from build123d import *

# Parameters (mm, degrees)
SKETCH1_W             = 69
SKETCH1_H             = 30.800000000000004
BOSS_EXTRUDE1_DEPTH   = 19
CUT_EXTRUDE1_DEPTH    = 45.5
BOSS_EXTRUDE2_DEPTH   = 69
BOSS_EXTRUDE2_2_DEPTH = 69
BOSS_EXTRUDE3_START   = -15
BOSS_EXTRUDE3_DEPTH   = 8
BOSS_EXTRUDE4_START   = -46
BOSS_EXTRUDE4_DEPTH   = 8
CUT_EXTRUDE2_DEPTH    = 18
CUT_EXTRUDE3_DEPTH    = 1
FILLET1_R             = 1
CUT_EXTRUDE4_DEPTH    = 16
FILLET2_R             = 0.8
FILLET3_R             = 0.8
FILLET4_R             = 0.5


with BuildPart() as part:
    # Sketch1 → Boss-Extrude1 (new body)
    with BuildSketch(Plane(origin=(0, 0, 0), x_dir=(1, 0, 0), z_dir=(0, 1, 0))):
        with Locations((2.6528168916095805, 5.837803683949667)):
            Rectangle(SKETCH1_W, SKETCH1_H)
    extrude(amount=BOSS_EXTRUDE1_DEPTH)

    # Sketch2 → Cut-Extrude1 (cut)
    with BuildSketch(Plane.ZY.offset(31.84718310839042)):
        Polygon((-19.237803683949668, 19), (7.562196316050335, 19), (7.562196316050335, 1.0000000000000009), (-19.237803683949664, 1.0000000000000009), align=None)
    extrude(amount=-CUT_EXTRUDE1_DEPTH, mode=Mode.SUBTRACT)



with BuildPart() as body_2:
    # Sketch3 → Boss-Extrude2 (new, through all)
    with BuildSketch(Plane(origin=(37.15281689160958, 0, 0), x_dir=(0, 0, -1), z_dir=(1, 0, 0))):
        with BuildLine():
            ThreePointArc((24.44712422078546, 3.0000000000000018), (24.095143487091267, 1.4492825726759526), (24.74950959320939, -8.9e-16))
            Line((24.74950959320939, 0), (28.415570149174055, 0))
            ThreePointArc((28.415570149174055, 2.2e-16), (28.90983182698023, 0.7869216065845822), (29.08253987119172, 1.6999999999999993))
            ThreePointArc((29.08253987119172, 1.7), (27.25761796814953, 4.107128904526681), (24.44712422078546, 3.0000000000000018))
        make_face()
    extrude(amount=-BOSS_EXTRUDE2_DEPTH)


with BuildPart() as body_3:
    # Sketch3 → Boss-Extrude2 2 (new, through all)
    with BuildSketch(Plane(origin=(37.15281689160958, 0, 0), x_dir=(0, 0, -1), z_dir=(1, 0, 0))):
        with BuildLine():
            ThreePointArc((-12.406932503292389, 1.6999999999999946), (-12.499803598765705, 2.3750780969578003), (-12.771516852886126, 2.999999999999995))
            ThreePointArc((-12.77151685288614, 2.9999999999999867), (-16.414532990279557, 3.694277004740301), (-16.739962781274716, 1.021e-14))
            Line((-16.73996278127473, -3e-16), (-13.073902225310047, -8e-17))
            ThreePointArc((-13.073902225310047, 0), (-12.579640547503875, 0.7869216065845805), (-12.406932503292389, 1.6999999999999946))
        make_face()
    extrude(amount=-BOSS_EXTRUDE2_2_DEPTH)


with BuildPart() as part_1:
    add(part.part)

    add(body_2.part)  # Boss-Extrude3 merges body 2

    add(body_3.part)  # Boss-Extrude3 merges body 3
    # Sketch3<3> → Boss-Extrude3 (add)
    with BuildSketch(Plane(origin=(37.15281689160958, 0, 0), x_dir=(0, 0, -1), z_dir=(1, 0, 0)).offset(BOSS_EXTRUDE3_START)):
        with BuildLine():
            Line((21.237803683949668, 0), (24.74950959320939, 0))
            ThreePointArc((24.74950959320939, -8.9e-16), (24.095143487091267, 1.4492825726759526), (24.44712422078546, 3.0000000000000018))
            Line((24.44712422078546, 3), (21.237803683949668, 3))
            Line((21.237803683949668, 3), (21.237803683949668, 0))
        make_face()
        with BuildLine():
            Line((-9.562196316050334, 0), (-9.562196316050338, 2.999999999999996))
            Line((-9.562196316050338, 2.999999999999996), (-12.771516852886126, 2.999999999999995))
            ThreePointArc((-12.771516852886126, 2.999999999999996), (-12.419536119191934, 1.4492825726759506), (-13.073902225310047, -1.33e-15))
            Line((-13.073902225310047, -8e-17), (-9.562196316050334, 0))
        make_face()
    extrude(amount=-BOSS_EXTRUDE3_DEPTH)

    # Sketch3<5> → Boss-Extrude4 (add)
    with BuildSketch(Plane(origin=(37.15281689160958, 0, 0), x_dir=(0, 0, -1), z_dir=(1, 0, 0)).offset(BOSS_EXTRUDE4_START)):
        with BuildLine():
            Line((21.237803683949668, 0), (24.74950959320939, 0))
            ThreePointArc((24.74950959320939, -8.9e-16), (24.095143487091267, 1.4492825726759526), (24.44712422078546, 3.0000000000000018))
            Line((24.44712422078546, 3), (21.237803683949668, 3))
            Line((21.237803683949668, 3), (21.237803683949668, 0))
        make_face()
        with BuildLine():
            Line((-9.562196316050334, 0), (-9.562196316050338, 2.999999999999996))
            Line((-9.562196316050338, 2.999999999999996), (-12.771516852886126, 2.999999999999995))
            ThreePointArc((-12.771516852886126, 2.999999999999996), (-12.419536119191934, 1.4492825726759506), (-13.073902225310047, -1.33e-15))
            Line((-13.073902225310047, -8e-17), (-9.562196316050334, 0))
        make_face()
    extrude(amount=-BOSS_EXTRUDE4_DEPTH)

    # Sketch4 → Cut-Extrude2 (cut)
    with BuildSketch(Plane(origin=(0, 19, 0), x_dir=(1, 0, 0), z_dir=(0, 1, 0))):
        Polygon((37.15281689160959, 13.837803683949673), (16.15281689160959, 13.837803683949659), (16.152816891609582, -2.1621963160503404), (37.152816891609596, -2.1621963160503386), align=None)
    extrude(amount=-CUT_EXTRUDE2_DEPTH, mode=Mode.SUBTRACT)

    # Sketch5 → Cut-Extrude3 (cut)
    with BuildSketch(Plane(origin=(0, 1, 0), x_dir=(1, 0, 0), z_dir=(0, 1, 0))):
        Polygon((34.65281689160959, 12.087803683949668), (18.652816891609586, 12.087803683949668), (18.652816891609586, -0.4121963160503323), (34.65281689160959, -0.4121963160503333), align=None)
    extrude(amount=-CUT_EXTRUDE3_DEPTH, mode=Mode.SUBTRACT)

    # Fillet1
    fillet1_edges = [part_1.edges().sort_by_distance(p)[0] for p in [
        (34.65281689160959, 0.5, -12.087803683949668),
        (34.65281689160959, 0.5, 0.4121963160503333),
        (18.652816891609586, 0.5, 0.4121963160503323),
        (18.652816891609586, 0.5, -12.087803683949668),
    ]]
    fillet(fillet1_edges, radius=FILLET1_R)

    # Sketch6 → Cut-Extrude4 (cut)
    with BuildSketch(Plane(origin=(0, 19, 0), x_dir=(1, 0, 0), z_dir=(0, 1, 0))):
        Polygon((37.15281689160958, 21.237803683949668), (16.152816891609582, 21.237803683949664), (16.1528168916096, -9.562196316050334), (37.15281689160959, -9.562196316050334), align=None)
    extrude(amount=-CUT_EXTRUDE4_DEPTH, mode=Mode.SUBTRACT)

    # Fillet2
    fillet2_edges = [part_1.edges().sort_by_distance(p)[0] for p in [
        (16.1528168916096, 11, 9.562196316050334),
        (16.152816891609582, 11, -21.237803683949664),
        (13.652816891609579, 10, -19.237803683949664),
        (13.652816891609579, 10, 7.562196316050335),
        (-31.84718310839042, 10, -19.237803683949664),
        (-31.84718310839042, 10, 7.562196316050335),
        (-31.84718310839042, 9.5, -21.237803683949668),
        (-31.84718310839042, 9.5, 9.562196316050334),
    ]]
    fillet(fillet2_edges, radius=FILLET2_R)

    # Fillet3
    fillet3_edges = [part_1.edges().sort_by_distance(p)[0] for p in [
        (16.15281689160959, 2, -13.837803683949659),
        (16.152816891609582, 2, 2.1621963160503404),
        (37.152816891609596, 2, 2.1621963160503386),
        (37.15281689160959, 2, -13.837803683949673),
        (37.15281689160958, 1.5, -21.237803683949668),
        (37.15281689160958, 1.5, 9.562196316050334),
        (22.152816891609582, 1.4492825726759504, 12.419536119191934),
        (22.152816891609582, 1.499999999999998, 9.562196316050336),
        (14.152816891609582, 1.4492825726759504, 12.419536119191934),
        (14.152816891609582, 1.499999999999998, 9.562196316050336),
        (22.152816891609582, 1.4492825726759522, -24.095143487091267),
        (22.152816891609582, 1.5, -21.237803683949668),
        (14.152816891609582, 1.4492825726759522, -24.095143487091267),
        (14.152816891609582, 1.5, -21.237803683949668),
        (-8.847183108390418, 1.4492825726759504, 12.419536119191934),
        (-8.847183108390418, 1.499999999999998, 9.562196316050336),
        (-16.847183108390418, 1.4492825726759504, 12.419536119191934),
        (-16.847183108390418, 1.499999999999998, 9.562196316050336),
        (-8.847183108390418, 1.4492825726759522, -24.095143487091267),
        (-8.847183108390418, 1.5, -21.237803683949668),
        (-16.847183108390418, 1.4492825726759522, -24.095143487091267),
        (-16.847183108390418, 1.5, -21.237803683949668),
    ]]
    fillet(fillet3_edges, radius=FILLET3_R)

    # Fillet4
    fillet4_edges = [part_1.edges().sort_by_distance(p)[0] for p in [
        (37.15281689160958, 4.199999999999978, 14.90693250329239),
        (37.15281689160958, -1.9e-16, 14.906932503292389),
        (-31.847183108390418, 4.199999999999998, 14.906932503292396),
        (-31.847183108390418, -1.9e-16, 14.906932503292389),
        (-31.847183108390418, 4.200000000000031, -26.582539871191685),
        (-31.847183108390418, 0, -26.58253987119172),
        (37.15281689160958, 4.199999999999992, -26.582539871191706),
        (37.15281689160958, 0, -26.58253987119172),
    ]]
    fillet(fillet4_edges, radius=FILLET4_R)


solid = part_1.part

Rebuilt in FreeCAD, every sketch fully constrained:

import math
import FreeCAD as App
import Part
import Sketcher
from FreeCAD import Vector


def edges_at(feature, points):
    """Names of the edges that pass closest to the given points."""
    edges = feature.Shape.Edges
    near = lambda p: min(range(len(edges)), key=lambda i: edges[i].distToShape(Part.Vertex(*p))[0])
    return sorted({f"Edge{near(p) + 1}" for p in points})


def add_polygon(sketch, points):
    """Adds a closed chain of lines whose ends are joined by coincident constraints."""
    first, n = sketch.GeometryCount, len(points)
    for a, b in zip(points, points[1:] + points[:1]):
        sketch.addGeometry(Part.LineSegment(App.Vector(*a, 0), App.Vector(*b, 0)), False)
    for i in range(n):
        sketch.addConstraint(Sketcher.Constraint("Coincident", first + i, 2, first + (i + 1) % n, 1))

doc = App.newDocument("Part")
body = doc.addObject("PartDesign::Body", "Body")

sketch1 = doc.addObject("Sketcher::SketchObject", "Sketch")
body.addObject(sketch1)
sketch1.AttachmentSupport = (doc.XZ_Plane, [""])
sketch1.MapMode = "FlatFace"
add_polygon(sketch1, [(-32, -21), (-32, 10), (37, 10), (37, -21)])
sketch1.addConstraint([
    Sketcher.Constraint("Vertical", 0),
    Sketcher.Constraint("Horizontal", 1),
    Sketcher.Constraint("Vertical", 2),
    Sketcher.Constraint("Horizontal", 3),
    Sketcher.Constraint("DistanceX", 1, 1, 1, 2, 69.0),
    Sketcher.Constraint("DistanceY", 0, 1, 0, 2, 30.8),
    Sketcher.Constraint("DistanceX", 0, 2, -1, 1, 31.847183),
    Sketcher.Constraint("DistanceY", -1, 1, 0, 2, 9.562196),
])
pad1 = doc.addObject("PartDesign::Pad", "Pad")
body.addObject(pad1)
pad1.Profile = sketch1
pad1.Length = 19
pad1.Reversed = True

sketch2 = doc.addObject("Sketcher::SketchObject", "Sketch001")
body.addObject(sketch2)
sketch2.AttachmentSupport = (doc.YZ_Plane, [""])
sketch2.MapMode = "FlatFace"
sketch2.AttachmentOffset = App.Placement(Vector(0, 0, -31.847183), App.Rotation())
add_polygon(sketch2, [(19, 8), (19, -19), (1, -19), (1, 8)])
sketch2.addConstraint([
    Sketcher.Constraint("Vertical", 0),
    Sketcher.Constraint("Horizontal", 1),
    Sketcher.Constraint("Vertical", 2),
    Sketcher.Constraint("Horizontal", 3),
    Sketcher.Constraint("DistanceX", 1, 2, 1, 1, 18.0),
    Sketcher.Constraint("DistanceY", 0, 2, 0, 1, 26.8),
    Sketcher.Constraint("DistanceX", -1, 1, 0, 2, 19.0),
    Sketcher.Constraint("DistanceY", 0, 2, -1, 1, 19.237804),
])
pocket1 = doc.addObject("PartDesign::Pocket", "Pocket")
body.addObject(pocket1)
pocket1.Profile = sketch2
pocket1.Length = 45.5
pocket1.Reversed = True
body2 = doc.addObject("PartDesign::Body", "Body001")

sketch3 = doc.addObject("Sketcher::SketchObject", "Sketch002")
body2.addObject(sketch3)
sketch3.AttachmentSupport = (doc.getObject("YZ_Plane001"), [""])
sketch3.MapMode = "FlatFace"
sketch3.AttachmentOffset = App.Placement(Vector(0, 0, 37.152817), App.Rotation())
sketch3.addGeometry([
    Part.LineSegment(Vector(0, -24.7, 0), Vector(0, -28.4, 0)),
    Part.ArcOfCircle(Part.Circle(Vector(1.7, -26.6, 0), Vector(0, 0, 1), 2.5), math.radians(-133), math.radians(133)),
], False)
sketch3.addConstraint([
    Sketcher.Constraint("Coincident", 0, 1, 1, 2),
    Sketcher.Constraint("Coincident", 1, 1, 0, 2),
    Sketcher.Constraint("Vertical", 0),
    Sketcher.Constraint("PointOnObject", 0, 1, -2),
    Sketcher.Constraint("Radius", 1, 2.5),
    Sketcher.Constraint("DistanceX", -1, 1, 1, 3, 1.7),
    Sketcher.Constraint("DistanceY", 1, 3, -1, 1, 26.58254),
])
pad2 = doc.addObject("PartDesign::Pad", "Pad001")
body2.addObject(pad2)
pad2.Profile = sketch3
pad2.Length = 69
pad2.Reversed = True
body3 = doc.addObject("PartDesign::Body", "Body002")

sketch4 = doc.addObject("Sketcher::SketchObject", "Sketch003")
body3.addObject(sketch4)
sketch4.AttachmentSupport = (doc.getObject("YZ_Plane002"), [""])
sketch4.MapMode = "FlatFace"
sketch4.AttachmentOffset = App.Placement(Vector(0, 0, 37.152817), App.Rotation())
sketch4.addGeometry([
    Part.LineSegment(Vector(0, 16.7, 0), Vector(0, 13.1, 0)),
    Part.ArcOfCircle(Part.Circle(Vector(1.7, 14.9, 0), Vector(0, 0, 1), 2.5), math.radians(-133), math.radians(133)),
], False)
sketch4.addConstraint([
    Sketcher.Constraint("Coincident", 0, 1, 1, 2),
    Sketcher.Constraint("Coincident", 1, 1, 0, 2),
    Sketcher.Constraint("Vertical", 0),
    Sketcher.Constraint("PointOnObject", 0, 1, -2),
    Sketcher.Constraint("Radius", 1, 2.5),
    Sketcher.Constraint("DistanceX", -1, 1, 1, 3, 1.7),
    Sketcher.Constraint("DistanceY", -1, 1, 1, 3, 14.906933),
])
pad3 = doc.addObject("PartDesign::Pad", "Pad002")
body3.addObject(pad3)
pad3.Profile = sketch4
pad3.Length = 69
pad3.Reversed = True
body.AllowCompound = True
doc.recompute()

boolean = doc.addObject("PartDesign::Boolean", "Boolean")
body.addObject(boolean)
boolean.Type = "Fuse"
boolean.addObjects([body2])
doc.recompute()

boolean2 = doc.addObject("PartDesign::Boolean", "Boolean001")
body.addObject(boolean2)
boolean2.Type = "Fuse"
boolean2.addObjects([body3])

sketch5 = doc.addObject("Sketcher::SketchObject", "Sketch004")
body.addObject(sketch5)
sketch5.AttachmentSupport = (doc.YZ_Plane, [""])
sketch5.MapMode = "FlatFace"
sketch5.AttachmentOffset = App.Placement(Vector(0, 0, 22.152817), App.Rotation())
sketch5.addGeometry([
    Part.LineSegment(Vector(0, -21.2, 0), Vector(0, -24.7, 0)),
    Part.ArcOfCircle(Part.Circle(Vector(1.7, -26.6, 0), Vector(0, 0, 1), 2.5), math.radians(59), math.radians(133)),
    Part.LineSegment(Vector(3, -24.4, 0), Vector(3, -21.2, 0)),
    Part.LineSegment(Vector(3, -21.2, 0), Vector(0, -21.2, 0)),
    Part.LineSegment(Vector(0, 9.6, 0), Vector(3, 9.6, 0)),
    Part.LineSegment(Vector(3, 9.6, 0), Vector(3, 12.8, 0)),
    Part.ArcOfCircle(Part.Circle(Vector(1.7, 14.9, 0), Vector(0, 0, 1), 2.5), math.radians(-133), math.radians(-59)),
    Part.LineSegment(Vector(0, 13.1, 0), Vector(0, 9.6, 0)),
], False)
sketch5.addConstraint([
    Sketcher.Constraint("Coincident", 0, 2, 1, 2),
    Sketcher.Constraint("Coincident", 1, 1, 2, 1),
    Sketcher.Constraint("Coincident", 2, 2, 3, 1),
    Sketcher.Constraint("Coincident", 3, 2, 0, 1),
    Sketcher.Constraint("Coincident", 4, 2, 5, 1),
    Sketcher.Constraint("Coincident", 5, 2, 6, 2),
    Sketcher.Constraint("Coincident", 6, 1, 7, 1),
    Sketcher.Constraint("Coincident", 7, 2, 4, 1),
    Sketcher.Constraint("Vertical", 0),
    Sketcher.Constraint("Vertical", 2),
    Sketcher.Constraint("Horizontal", 3),
    Sketcher.Constraint("Horizontal", 4),
    Sketcher.Constraint("Vertical", 5),
    Sketcher.Constraint("Vertical", 7),
    Sketcher.Constraint("Equal", 1, 6),
    Sketcher.Constraint("PointOnObject", 0, 2, -2),
    Sketcher.Constraint("PointOnObject", 6, 1, -2),
    Sketcher.Constraint("Vertical", 1, 3, 6, 3),
    Sketcher.Constraint("Vertical", 2, 2, 4, 2),
    Sketcher.Constraint("Equal", 2, 5),
    Sketcher.Constraint("Radius", 1, 2.5),
    Sketcher.Constraint("DistanceX", 3, 2, 3, 1, 3.0),
    Sketcher.Constraint("DistanceX", -1, 1, 1, 3, 1.7),
    Sketcher.Constraint("DistanceY", 2, 2, 4, 2, 30.8),
    Sketcher.Constraint("DistanceY", 2, 1, 2, 2, 3.209321),
    Sketcher.Constraint("DistanceY", 1, 3, -1, 1, 26.58254),
])
pad4 = doc.addObject("PartDesign::Pad", "Pad003")
body.addObject(pad4)
pad4.Profile = sketch5
pad4.Length = 8
pad4.Reversed = True

sketch6 = doc.addObject("Sketcher::SketchObject", "Sketch005")
body.addObject(sketch6)
sketch6.AttachmentSupport = (doc.YZ_Plane, [""])
sketch6.MapMode = "FlatFace"
sketch6.AttachmentOffset = App.Placement(Vector(0, 0, -8.847183), App.Rotation())
sketch6.addGeometry([
    Part.LineSegment(Vector(0, -21.2, 0), Vector(0, -24.7, 0)),
    Part.ArcOfCircle(Part.Circle(Vector(1.7, -26.6, 0), Vector(0, 0, 1), 2.5), math.radians(59), math.radians(133)),
    Part.LineSegment(Vector(3, -24.4, 0), Vector(3, -21.2, 0)),
    Part.LineSegment(Vector(3, -21.2, 0), Vector(0, -21.2, 0)),
    Part.LineSegment(Vector(0, 9.6, 0), Vector(3, 9.6, 0)),
    Part.LineSegment(Vector(3, 9.6, 0), Vector(3, 12.8, 0)),
    Part.ArcOfCircle(Part.Circle(Vector(1.7, 14.9, 0), Vector(0, 0, 1), 2.5), math.radians(-133), math.radians(-59)),
    Part.LineSegment(Vector(0, 13.1, 0), Vector(0, 9.6, 0)),
], False)
sketch6.addConstraint([
    Sketcher.Constraint("Coincident", 0, 2, 1, 2),
    Sketcher.Constraint("Coincident", 1, 1, 2, 1),
    Sketcher.Constraint("Coincident", 2, 2, 3, 1),
    Sketcher.Constraint("Coincident", 3, 2, 0, 1),
    Sketcher.Constraint("Coincident", 4, 2, 5, 1),
    Sketcher.Constraint("Coincident", 5, 2, 6, 2),
    Sketcher.Constraint("Coincident", 6, 1, 7, 1),
    Sketcher.Constraint("Coincident", 7, 2, 4, 1),
    Sketcher.Constraint("Vertical", 0),
    Sketcher.Constraint("Vertical", 2),
    Sketcher.Constraint("Horizontal", 3),
    Sketcher.Constraint("Horizontal", 4),
    Sketcher.Constraint("Vertical", 5),
    Sketcher.Constraint("Vertical", 7),
    Sketcher.Constraint("Equal", 1, 6),
    Sketcher.Constraint("PointOnObject", 0, 2, -2),
    Sketcher.Constraint("PointOnObject", 6, 1, -2),
    Sketcher.Constraint("Vertical", 1, 3, 6, 3),
    Sketcher.Constraint("Vertical", 2, 2, 4, 2),
    Sketcher.Constraint("Equal", 2, 5),
    Sketcher.Constraint("Radius", 1, 2.5),
    Sketcher.Constraint("DistanceX", 3, 2, 3, 1, 3.0),
    Sketcher.Constraint("DistanceX", -1, 1, 1, 3, 1.7),
    Sketcher.Constraint("DistanceY", 2, 2, 4, 2, 30.8),
    Sketcher.Constraint("DistanceY", 2, 1, 2, 2, 3.209321),
    Sketcher.Constraint("DistanceY", 1, 3, -1, 1, 26.58254),
])
pad5 = doc.addObject("PartDesign::Pad", "Pad004")
body.addObject(pad5)
pad5.Profile = sketch6
pad5.Length = 8
pad5.Reversed = True

sketch7 = doc.addObject("Sketcher::SketchObject", "Sketch006")
body.addObject(sketch7)
sketch7.AttachmentSupport = (doc.XZ_Plane, [""])
sketch7.MapMode = "FlatFace"
sketch7.AttachmentOffset = App.Placement(Vector(0, 0, -19), App.Rotation())
add_polygon(sketch7, [(37, -14), (16, -14), (16, 2), (37, 2)])
sketch7.addConstraint([
    Sketcher.Constraint("Horizontal", 0),
    Sketcher.Constraint("Vertical", 1),
    Sketcher.Constraint("Horizontal", 2),
    Sketcher.Constraint("Vertical", 3),
    Sketcher.Constraint("DistanceX", 0, 2, 0, 1, 21.0),
    Sketcher.Constraint("DistanceY", 1, 1, 1, 2, 16.0),
    Sketcher.Constraint("DistanceX", -1, 1, 0, 2, 16.152817),
    Sketcher.Constraint("DistanceY", 0, 2, -1, 1, 13.837804),
])
pocket2 = doc.addObject("PartDesign::Pocket", "Pocket001")
body.addObject(pocket2)
pocket2.Profile = sketch7
pocket2.Length = 18
pocket2.Reversed = True

sketch8 = doc.addObject("Sketcher::SketchObject", "Sketch007")
body.addObject(sketch8)
sketch8.AttachmentSupport = (doc.XZ_Plane, [""])
sketch8.MapMode = "FlatFace"
sketch8.AttachmentOffset = App.Placement(Vector(0, 0, -1), App.Rotation())
add_polygon(sketch8, [(35, -12), (19, -12), (19, 0), (35, 0)])
sketch8.addConstraint([
    Sketcher.Constraint("Horizontal", 0),
    Sketcher.Constraint("Vertical", 1),
    Sketcher.Constraint("Horizontal", 2),
    Sketcher.Constraint("Vertical", 3),
    Sketcher.Constraint("DistanceX", 0, 2, 0, 1, 16.0),
    Sketcher.Constraint("DistanceY", 1, 1, 1, 2, 12.5),
    Sketcher.Constraint("DistanceX", -1, 1, 0, 2, 18.652817),
    Sketcher.Constraint("DistanceY", 0, 2, -1, 1, 12.087804),
])
pocket3 = doc.addObject("PartDesign::Pocket", "Pocket002")
body.addObject(pocket3)
pocket3.Profile = sketch8
pocket3.Length = 1
pocket3.Reversed = True
doc.recompute()

fillet = doc.addObject("PartDesign::Fillet", "Fillet")
body.addObject(fillet)
fillet.Base = (pocket3, edges_at(pocket3, [
    (34.653, 0.5, -12.088),
    (34.653, 0.5, 0.412),
    (18.653, 0.5, 0.412),
    (18.653, 0.5, -12.088),
]))
fillet.Radius = 1

sketch9 = doc.addObject("Sketcher::SketchObject", "Sketch008")
body.addObject(sketch9)
sketch9.AttachmentSupport = (doc.XZ_Plane, [""])
sketch9.MapMode = "FlatFace"
sketch9.AttachmentOffset = App.Placement(Vector(0, 0, -19), App.Rotation())
add_polygon(sketch9, [(37, -21), (16, -21), (16, 10), (37, 10)])
sketch9.addConstraint([
    Sketcher.Constraint("Horizontal", 0),
    Sketcher.Constraint("Vertical", 1),
    Sketcher.Constraint("Horizontal", 2),
    Sketcher.Constraint("Vertical", 3),
    Sketcher.Constraint("DistanceX", 0, 2, 0, 1, 21.0),
    Sketcher.Constraint("DistanceY", 1, 1, 1, 2, 30.8),
    Sketcher.Constraint("DistanceX", -1, 1, 0, 2, 16.152817),
    Sketcher.Constraint("DistanceY", 0, 2, -1, 1, 21.237804),
])
pocket4 = doc.addObject("PartDesign::Pocket", "Pocket003")
body.addObject(pocket4)
pocket4.Profile = sketch9
pocket4.Length = 16
pocket4.Reversed = True
doc.recompute()

fillet2 = doc.addObject("PartDesign::Fillet", "Fillet001")
body.addObject(fillet2)
fillet2.Base = (pocket4, edges_at(pocket4, [
    (16.153, 11, 9.562),
    (16.153, 11, -21.238),
    (13.653, 10, -19.238),
    (13.653, 10, 7.562),
    (-31.847, 10, -19.238),
    (-31.847, 10, 7.562),
    (-31.847, 9.5, -21.238),
    (-31.847, 9.5, 9.562),
]))
fillet2.Radius = 0.8
doc.recompute()

fillet3 = doc.addObject("PartDesign::Fillet", "Fillet002")
body.addObject(fillet3)
fillet3.Base = (fillet2, edges_at(fillet2, [
    (16.153, 2, -13.838),
    (16.153, 2, 2.162),
    (37.153, 2, 2.162),
    (37.153, 2, -13.838),
    (37.153, 1.5, -21.238),
    (37.153, 1.5, 9.562),
    (22.153, 1.449, 12.42),
    (22.153, 1.5, 9.562),
    (14.153, 1.449, 12.42),
    (14.153, 1.5, 9.562),
    (22.153, 1.449, -24.095),
    (22.153, 1.5, -21.238),
    (14.153, 1.449, -24.095),
    (14.153, 1.5, -21.238),
    (-8.847, 1.449, 12.42),
    (-8.847, 1.5, 9.562),
    (-16.847, 1.449, 12.42),
    (-16.847, 1.5, 9.562),
    (-8.847, 1.449, -24.095),
    (-8.847, 1.5, -21.238),
    (-16.847, 1.449, -24.095),
    (-16.847, 1.5, -21.238),
]))
fillet3.Radius = 0.8
doc.recompute()

fillet4 = doc.addObject("PartDesign::Fillet", "Fillet003")
body.addObject(fillet4)
fillet4.Base = (fillet3, edges_at(fillet3, [
    (37.153, 4.2, 14.907),
    (37.153, 0, 14.907),
    (-31.847, 4.2, 14.907),
    (-31.847, 0, 14.907),
    (-31.847, 4.2, -26.583),
    (-31.847, 0, -26.583),
    (37.153, 4.2, -26.583),
    (37.153, 0, -26.583),
]))
fillet4.Radius = 0.5

doc.recompute()
